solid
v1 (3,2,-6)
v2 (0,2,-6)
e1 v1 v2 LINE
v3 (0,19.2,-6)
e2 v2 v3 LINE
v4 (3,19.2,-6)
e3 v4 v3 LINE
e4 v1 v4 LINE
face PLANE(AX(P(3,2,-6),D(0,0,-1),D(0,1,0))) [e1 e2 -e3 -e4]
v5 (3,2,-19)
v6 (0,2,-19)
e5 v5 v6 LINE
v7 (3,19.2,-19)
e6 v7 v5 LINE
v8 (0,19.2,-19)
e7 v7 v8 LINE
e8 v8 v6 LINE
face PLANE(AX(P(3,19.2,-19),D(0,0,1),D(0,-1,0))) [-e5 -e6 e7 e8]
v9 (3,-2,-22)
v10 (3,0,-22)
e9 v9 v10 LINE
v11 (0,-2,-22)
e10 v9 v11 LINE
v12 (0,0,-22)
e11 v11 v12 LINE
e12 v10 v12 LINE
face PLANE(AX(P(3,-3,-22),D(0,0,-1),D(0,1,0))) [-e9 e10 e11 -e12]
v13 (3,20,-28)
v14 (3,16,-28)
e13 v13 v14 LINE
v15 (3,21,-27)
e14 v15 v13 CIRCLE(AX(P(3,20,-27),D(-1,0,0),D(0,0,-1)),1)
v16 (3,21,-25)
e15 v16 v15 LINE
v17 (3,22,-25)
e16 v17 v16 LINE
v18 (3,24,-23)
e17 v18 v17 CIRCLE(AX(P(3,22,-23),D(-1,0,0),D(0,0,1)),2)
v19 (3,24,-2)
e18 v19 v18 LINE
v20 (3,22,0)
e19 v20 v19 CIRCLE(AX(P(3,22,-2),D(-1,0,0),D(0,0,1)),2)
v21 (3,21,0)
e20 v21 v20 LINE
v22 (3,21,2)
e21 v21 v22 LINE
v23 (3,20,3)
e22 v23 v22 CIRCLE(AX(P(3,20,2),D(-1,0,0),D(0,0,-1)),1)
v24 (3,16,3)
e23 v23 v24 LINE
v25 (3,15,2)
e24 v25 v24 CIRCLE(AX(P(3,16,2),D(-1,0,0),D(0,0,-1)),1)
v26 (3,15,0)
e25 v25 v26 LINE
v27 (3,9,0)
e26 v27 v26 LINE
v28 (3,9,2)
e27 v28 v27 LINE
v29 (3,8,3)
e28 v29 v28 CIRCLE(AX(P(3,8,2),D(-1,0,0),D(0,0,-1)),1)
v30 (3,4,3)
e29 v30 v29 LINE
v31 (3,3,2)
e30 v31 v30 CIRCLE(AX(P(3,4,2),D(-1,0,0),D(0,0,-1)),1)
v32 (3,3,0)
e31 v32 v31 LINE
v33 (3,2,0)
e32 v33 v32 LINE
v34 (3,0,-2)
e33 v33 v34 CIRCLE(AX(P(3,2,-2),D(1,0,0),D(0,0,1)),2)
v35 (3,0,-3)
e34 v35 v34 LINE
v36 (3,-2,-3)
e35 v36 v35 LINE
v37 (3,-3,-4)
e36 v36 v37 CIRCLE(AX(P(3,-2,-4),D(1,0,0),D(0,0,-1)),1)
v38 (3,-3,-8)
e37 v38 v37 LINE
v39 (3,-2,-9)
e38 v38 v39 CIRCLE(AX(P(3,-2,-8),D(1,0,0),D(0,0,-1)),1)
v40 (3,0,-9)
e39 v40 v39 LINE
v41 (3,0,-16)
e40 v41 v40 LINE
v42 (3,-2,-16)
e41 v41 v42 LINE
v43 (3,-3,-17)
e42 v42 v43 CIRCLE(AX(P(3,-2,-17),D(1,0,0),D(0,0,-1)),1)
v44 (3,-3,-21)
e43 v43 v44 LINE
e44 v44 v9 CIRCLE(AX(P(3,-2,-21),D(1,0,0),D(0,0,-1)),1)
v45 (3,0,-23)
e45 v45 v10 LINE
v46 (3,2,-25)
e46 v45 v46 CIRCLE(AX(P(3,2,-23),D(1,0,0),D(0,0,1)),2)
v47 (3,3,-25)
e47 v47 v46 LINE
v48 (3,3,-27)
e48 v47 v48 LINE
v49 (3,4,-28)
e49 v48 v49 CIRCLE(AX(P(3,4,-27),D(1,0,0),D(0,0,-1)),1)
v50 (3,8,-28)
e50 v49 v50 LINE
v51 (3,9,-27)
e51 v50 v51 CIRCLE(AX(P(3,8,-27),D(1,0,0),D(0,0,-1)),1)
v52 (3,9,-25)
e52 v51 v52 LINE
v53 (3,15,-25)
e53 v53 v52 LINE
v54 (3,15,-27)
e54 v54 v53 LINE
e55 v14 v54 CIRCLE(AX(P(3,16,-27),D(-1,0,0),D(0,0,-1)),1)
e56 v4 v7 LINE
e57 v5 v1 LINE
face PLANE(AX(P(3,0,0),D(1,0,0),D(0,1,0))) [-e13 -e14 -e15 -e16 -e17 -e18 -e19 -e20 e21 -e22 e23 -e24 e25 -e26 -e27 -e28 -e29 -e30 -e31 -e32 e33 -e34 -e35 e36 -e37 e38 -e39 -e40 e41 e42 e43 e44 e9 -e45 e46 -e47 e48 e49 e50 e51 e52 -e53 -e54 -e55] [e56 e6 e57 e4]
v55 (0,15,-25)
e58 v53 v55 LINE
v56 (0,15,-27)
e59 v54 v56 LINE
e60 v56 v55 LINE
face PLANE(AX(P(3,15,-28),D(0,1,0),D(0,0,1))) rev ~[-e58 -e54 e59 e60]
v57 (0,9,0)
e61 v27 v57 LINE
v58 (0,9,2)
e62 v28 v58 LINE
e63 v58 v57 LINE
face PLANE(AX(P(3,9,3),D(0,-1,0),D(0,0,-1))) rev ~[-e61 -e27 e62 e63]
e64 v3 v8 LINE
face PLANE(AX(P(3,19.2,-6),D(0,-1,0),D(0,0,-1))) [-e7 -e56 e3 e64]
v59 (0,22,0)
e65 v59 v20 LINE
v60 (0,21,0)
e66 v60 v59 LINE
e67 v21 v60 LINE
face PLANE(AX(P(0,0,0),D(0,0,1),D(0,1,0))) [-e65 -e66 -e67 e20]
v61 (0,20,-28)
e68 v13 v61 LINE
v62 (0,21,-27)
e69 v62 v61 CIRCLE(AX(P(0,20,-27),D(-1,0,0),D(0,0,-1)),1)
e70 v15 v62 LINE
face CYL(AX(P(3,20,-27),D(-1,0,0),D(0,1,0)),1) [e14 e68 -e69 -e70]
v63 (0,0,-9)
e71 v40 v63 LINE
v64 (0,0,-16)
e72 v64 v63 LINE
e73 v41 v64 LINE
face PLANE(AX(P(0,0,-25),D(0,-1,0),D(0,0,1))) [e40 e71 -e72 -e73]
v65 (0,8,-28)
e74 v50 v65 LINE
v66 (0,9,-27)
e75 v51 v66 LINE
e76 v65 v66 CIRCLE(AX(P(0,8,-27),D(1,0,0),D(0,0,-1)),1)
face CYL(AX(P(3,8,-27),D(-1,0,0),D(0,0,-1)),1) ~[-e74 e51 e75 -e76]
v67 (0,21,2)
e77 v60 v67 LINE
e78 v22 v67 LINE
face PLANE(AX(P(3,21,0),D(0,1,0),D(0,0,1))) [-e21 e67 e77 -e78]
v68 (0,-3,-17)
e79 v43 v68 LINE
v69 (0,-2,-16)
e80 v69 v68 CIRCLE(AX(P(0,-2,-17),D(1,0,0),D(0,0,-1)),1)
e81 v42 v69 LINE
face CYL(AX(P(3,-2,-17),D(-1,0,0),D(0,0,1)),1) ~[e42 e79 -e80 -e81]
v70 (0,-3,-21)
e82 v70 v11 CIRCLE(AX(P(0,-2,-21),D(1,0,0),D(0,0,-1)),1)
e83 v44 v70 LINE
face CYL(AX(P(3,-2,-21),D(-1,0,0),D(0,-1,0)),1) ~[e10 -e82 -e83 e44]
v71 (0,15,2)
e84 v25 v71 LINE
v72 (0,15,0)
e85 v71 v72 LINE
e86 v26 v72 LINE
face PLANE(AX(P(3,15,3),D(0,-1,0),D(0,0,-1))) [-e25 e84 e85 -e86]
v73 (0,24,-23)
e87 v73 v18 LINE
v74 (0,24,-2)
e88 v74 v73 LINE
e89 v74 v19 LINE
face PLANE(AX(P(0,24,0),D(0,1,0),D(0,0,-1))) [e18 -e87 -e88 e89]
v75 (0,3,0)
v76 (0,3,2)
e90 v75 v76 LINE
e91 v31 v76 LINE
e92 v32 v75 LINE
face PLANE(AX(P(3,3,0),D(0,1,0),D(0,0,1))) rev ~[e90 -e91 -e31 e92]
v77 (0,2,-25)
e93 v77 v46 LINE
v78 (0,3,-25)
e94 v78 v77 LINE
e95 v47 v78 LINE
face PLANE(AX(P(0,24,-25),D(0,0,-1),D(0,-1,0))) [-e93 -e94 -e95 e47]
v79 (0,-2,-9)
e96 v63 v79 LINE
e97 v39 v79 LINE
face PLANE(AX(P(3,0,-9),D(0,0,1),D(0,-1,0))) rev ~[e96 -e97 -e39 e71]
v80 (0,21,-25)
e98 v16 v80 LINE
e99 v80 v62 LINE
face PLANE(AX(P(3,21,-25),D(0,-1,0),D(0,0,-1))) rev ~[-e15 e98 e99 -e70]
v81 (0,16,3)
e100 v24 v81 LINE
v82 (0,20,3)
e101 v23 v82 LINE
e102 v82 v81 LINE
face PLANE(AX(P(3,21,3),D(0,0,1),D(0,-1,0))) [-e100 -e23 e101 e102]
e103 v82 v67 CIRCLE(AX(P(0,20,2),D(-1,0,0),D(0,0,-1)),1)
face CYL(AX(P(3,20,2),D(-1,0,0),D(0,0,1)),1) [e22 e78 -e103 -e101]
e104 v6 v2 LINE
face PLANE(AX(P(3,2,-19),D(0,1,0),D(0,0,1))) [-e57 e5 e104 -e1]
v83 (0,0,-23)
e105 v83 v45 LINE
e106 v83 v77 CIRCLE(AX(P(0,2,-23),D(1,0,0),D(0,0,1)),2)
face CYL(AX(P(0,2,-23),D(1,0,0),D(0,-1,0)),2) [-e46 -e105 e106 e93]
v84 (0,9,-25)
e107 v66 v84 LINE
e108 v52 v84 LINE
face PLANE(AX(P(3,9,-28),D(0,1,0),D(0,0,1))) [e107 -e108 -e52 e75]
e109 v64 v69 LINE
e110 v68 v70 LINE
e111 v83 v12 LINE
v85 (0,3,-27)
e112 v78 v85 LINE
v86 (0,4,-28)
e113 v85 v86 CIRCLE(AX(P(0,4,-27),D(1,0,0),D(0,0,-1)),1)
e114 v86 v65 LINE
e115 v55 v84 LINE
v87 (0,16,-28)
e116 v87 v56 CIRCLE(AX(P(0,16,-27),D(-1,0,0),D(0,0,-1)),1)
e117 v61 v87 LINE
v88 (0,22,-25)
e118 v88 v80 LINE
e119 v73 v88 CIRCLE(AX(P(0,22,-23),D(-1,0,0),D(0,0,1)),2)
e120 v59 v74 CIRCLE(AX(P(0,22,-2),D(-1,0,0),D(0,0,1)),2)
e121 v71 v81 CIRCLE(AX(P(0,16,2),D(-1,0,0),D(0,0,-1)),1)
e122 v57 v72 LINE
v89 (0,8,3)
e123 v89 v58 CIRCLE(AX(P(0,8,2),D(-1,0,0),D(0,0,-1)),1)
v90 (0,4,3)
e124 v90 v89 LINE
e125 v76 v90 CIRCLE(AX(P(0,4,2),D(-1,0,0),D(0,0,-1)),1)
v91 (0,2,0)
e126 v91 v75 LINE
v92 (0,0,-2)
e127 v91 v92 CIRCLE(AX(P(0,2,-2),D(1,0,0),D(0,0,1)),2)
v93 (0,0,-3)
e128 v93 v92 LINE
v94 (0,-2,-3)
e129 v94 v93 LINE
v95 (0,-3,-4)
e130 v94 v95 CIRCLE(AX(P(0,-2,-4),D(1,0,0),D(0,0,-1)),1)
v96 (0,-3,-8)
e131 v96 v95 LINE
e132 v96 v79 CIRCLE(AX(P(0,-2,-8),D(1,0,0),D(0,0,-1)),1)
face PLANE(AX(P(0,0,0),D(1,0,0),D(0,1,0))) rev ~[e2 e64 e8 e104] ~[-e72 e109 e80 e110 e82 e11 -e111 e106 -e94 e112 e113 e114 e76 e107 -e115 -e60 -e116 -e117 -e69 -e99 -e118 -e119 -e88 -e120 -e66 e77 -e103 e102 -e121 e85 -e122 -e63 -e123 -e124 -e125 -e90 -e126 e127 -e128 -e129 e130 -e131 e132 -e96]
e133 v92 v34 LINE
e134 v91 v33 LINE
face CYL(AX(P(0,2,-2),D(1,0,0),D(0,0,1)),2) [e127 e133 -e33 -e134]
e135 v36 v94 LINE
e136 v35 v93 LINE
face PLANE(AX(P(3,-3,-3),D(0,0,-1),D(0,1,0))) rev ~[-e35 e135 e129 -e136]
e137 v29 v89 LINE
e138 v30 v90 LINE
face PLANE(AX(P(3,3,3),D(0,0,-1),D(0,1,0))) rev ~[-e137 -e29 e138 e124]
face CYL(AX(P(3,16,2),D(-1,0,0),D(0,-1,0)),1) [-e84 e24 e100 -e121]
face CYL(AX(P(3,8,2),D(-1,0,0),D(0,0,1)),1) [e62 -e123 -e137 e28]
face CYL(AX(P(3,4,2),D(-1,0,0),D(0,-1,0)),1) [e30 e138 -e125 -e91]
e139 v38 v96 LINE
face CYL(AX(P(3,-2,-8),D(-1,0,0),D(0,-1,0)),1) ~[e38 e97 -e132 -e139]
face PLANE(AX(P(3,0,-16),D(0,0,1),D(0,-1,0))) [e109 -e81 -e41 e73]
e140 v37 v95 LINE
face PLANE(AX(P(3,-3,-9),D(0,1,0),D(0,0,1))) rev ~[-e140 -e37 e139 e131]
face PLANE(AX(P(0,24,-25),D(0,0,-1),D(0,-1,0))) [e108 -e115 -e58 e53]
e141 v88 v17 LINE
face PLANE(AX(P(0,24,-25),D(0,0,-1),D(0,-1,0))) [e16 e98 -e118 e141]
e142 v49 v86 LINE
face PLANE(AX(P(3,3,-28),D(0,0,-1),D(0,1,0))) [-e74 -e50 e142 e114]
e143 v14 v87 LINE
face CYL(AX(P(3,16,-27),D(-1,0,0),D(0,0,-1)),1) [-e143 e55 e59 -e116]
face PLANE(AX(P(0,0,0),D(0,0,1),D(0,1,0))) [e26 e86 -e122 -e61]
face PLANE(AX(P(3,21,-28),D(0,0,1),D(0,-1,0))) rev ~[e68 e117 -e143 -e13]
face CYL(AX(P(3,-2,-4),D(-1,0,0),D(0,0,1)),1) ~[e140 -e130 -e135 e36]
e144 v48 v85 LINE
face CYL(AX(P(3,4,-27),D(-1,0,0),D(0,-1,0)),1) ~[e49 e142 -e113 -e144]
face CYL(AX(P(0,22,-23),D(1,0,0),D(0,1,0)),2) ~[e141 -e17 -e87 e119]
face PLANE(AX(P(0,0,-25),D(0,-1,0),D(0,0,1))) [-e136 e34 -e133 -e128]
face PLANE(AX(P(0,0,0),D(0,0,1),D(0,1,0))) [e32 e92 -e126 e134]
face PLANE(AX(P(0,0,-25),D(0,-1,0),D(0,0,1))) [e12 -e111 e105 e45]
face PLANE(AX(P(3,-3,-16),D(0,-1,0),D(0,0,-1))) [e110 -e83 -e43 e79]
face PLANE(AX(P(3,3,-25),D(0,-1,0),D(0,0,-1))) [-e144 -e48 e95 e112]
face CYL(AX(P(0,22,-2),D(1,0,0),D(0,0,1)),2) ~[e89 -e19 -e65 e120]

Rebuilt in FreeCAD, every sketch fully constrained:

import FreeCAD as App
import Part
import Sketcher
Q = App.Units.Quantity


def edges_at(feature, points):
    """Names of the edges that pass closest to the given points."""
    edges = feature.Shape.Edges
    near = lambda p: min(range(len(edges)), key=lambda i: edges[i].distToShape(Part.Vertex(*p))[0])
    return sorted({f"Edge{near(p) + 1}" for p in points})

doc = App.newDocument("Part")
body = doc.addObject("PartDesign::Body", "Body")

# Sketch on YZ plane
sketch1 = doc.addObject("Sketcher::SketchObject", "Sketch")
body.addObject(sketch1)
sketch1.AttachmentSupport = (doc.YZ_Plane, [""])
sketch1.MapMode = "FlatFace"
sketch1.addGeometry([
    Part.LineSegment(App.Vector(24, 0, 0), App.Vector(0, 0, 0)),
    Part.LineSegment(App.Vector(0, 0, 0), App.Vector(0, -25, 0)),
    Part.LineSegment(App.Vector(0, -25, 0), App.Vector(24, -25, 0)),
    Part.LineSegment(App.Vector(24, -25, 0), App.Vector(24, 0, 0)),
], False)
sketch1.addConstraint([
    Sketcher.Constraint("Coincident", 0, 2, 1, 1),
    Sketcher.Constraint("Coincident", 1, 2, 2, 1),
    Sketcher.Constraint("Coincident", 2, 2, 3, 1),
    Sketcher.Constraint("Coincident", 3, 2, 0, 1),
    Sketcher.Constraint("Horizontal", 0),
    Sketcher.Constraint("Vertical", 1),
    Sketcher.Constraint("Horizontal", 2),
    Sketcher.Constraint("Vertical", 3),
    Sketcher.Constraint("Coincident", 0, 2, -1, 1),
    Sketcher.Constraint("DistanceX", 0, 2, 0, 1, Q("24 mm")),
    Sketcher.Constraint("DistanceY", 1, 2, 1, 1, Q("25 mm")),
])
pad1 = doc.addObject("PartDesign::Pad", "Pad")
body.addObject(pad1)
pad1.Profile = sketch1
pad1.Length = 3

# Sketch on YZ plane
sketch2 = doc.addObject("Sketcher::SketchObject", "Sketch001")
body.addObject(sketch2)
sketch2.AttachmentSupport = (doc.YZ_Plane, [""])
sketch2.MapMode = "FlatFace"
sketch2.AttachmentOffset = App.Placement(App.Vector(0, 0, 3), App.Rotation())
sketch2.addGeometry([
    Part.LineSegment(App.Vector(0, -22, 0), App.Vector(0, -16, 0)),  # 0
    Part.LineSegment(App.Vector(0, -16, 0), App.Vector(-3, -16, 0)),  # 1
    Part.LineSegment(App.Vector(-3, -16, 0), App.Vector(-3, -22, 0)),  # 2
    Part.LineSegment(App.Vector(-3, -22, 0), App.Vector(0, -22, 0)),  # 3
    Part.LineSegment(App.Vector(15, 0, 0), App.Vector(21, 0, 0)),  # 4
    Part.LineSegment(App.Vector(21, 0, 0), App.Vector(21, 3, 0)),  # 5
    Part.LineSegment(App.Vector(21, 3, 0), App.Vector(15, 3, 0)),  # 6
    Part.LineSegment(App.Vector(15, 3, 0), App.Vector(15, 0, 0)),  # 7
    Part.LineSegment(App.Vector(3, 0, 0), App.Vector(9, 0, 0)),  # 8
    Part.LineSegment(App.Vector(9, 0, 0), App.Vector(9, 3, 0)),  # 9
    Part.LineSegment(App.Vector(9, 3, 0), App.Vector(3, 3, 0)),  # 10
    Part.LineSegment(App.Vector(3, 3, 0), App.Vector(3, 0, 0)),  # 11
    Part.LineSegment(App.Vector(-3, -9, 0), App.Vector(0, -9, 0)),  # 12
    Part.LineSegment(App.Vector(0, -9, 0), App.Vector(0, -3, 0)),  # 13
    Part.LineSegment(App.Vector(0, -3, 0), App.Vector(-3, -3, 0)),  # 14
    Part.LineSegment(App.Vector(-3, -3, 0), App.Vector(-3, -9, 0)),  # 15
    Part.LineSegment(App.Vector(21, -28, 0), App.Vector(21, -25, 0)),  # 16
    Part.LineSegment(App.Vector(21, -25, 0), App.Vector(15, -25, 0)),  # 17
    Part.LineSegment(App.Vector(15, -25, 0), App.Vector(15, -28, 0)),  # 18
    Part.LineSegment(App.Vector(15, -28, 0), App.Vector(21, -28, 0)),  # 19
    Part.LineSegment(App.Vector(9, -25, 0), App.Vector(3, -25, 0)),  # 20
    Part.LineSegment(App.Vector(3, -25, 0), App.Vector(3, -28, 0)),  # 21
    Part.LineSegment(App.Vector(3, -28, 0), App.Vector(9, -28, 0)),  # 22
    Part.LineSegment(App.Vector(9, -28, 0), App.Vector(9, -25, 0)),  # 23
], False)
sketch2.addConstraint([
    Sketcher.Constraint("Coincident", 0, 2, 1, 1),
    Sketcher.Constraint("Coincident", 1, 2, 2, 1),
    Sketcher.Constraint("Coincident", 2, 2, 3, 1),
    Sketcher.Constraint("Coincident", 3, 2, 0, 1),
    Sketcher.Constraint("Coincident", 4, 2, 5, 1),
    Sketcher.Constraint("Coincident", 5, 2, 6, 1),
    Sketcher.Constraint("Coincident", 6, 2, 7, 1),
    Sketcher.Constraint("Coincident", 7, 2, 4, 1),
    Sketcher.Constraint("Coincident", 8, 2, 9, 1),
    Sketcher.Constraint("Coincident", 9, 2, 10, 1),
    Sketcher.Constraint("Coincident", 10, 2, 11, 1),
    Sketcher.Constraint("Coincident", 11, 2, 8, 1),
    Sketcher.Constraint("Coincident", 12, 2, 13, 1),
    Sketcher.Constraint("Coincident", 13, 2, 14, 1),
    Sketcher.Constraint("Coincident", 14, 2, 15, 1),
    Sketcher.Constraint("Coincident", 15, 2, 12, 1),
    Sketcher.Constraint("Coincident", 16, 2, 17, 1),
    Sketcher.Constraint("Coincident", 17, 2, 18, 1),
    Sketcher.Constraint("Coincident", 18, 2, 19, 1),
    Sketcher.Constraint("Coincident", 19, 2, 16, 1),
    Sketcher.Constraint("Coincident", 20, 2, 21, 1),
    Sketcher.Constraint("Coincident", 21, 2, 22, 1),
    Sketcher.Constraint("Coincident", 22, 2, 23, 1),
    Sketcher.Constraint("Coincident", 23, 2, 20, 1),
    Sketcher.Constraint("Vertical", 0),
    Sketcher.Constraint("Horizontal", 1),
    Sketcher.Constraint("Vertical", 2),
    Sketcher.Constraint("Horizontal", 3),
    Sketcher.Constraint("Horizontal", 4),
    Sketcher.Constraint("Vertical", 5),
    Sketcher.Constraint("Horizontal", 6),
    Sketcher.Constraint("Vertical", 7),
    Sketcher.Constraint("Horizontal", 8),
    Sketcher.Constraint("Vertical", 9),
    Sketcher.Constraint("Horizontal", 10),
    Sketcher.Constraint("Vertical", 11),
    Sketcher.Constraint("Horizontal", 12),
    Sketcher.Constraint("Vertical", 13),
    Sketcher.Constraint("Horizontal", 14),
    Sketcher.Constraint("Vertical", 15),
    Sketcher.Constraint("Vertical", 16),
    Sketcher.Constraint("Horizontal", 17),
    Sketcher.Constraint("Vertical", 18),
    Sketcher.Constraint("Horizontal", 19),
    Sketcher.Constraint("Horizontal", 20),
    Sketcher.Constraint("Vertical", 21),
    Sketcher.Constraint("Horizontal", 22),
    Sketcher.Constraint("Vertical", 23),
    Sketcher.Constraint("Symmetric", 10, 2, 14, 2, -1, 1),
    Sketcher.Constraint("PointOnObject", 0, 2, -2),
    Sketcher.Constraint("PointOnObject", 4, 2, -1),
    Sketcher.Constraint("PointOnObject", 8, 2, -1),
    Sketcher.Constraint("PointOnObject", 12, 2, -2),
    Sketcher.Constraint("Horizontal", 6, 2, 9, 2),
    Sketcher.Constraint("Horizontal", 17, 2, 20, 2),
    Sketcher.Constraint("Horizontal", 19, 2, 21, 2),
    Sketcher.Constraint("Vertical", 2, 2, 14, 2),
    Sketcher.Constraint("Vertical", 5, 2, 16, 2),
    Sketcher.Constraint("Vertical", 7, 2, 17, 2),
    Sketcher.Constraint("Vertical", 11, 2, 20, 2),
    Sketcher.Constraint("Vertical", 9, 2, 22, 2),
    Sketcher.Constraint("Equal", 6, 8),
    Sketcher.Constraint("Equal", 22, 0),
    Sketcher.Constraint("Equal", 14, 5),
    Sketcher.Constraint("Equal", 2, 13),
    Sketcher.Constraint("Equal", 11, 16),
    Sketcher.Constraint("DistanceX", 1, 2, 1, 1, Q("3 mm")),
    Sketcher.Constraint("DistanceX", 4, 1, 4, 2, Q("6 mm")),
    Sketcher.Constraint("DistanceX", 8, 2, 7, 2, Q("6 mm")),
    Sketcher.Constraint("DistanceY", 16, 2, 3, 2, Q("3 mm")),
    Sketcher.Constraint("DistanceY", 0, 2, -1, 1, Q("16 mm")),
])
pad2 = doc.addObject("PartDesign::Pad", "Pad001")
body.addObject(pad2)
pad2.Profile = sketch2
pad2.Length = 3
pad2.Reversed = True

# Sketch on YZ plane
sketch3 = doc.addObject("Sketcher::SketchObject", "Sketch002")
body.addObject(sketch3)
sketch3.AttachmentSupport = (doc.YZ_Plane, [""])
sketch3.MapMode = "FlatFace"
sketch3.AttachmentOffset = App.Placement(App.Vector(0, 0, 3), App.Rotation())
sketch3.addGeometry([
    Part.LineSegment(App.Vector(19.2, -19, 0), App.Vector(19.2, -6, 0)),
    Part.LineSegment(App.Vector(19.2, -6, 0), App.Vector(2, -6, 0)),
    Part.LineSegment(App.Vector(2, -6, 0), App.Vector(2, -19, 0)),
    Part.LineSegment(App.Vector(2, -19, 0), App.Vector(19.2, -19, 0)),
], False)
sketch3.addConstraint([
    Sketcher.Constraint("Coincident", 0, 2, 1, 1),
    Sketcher.Constraint("Coincident", 1, 2, 2, 1),
    Sketcher.Constraint("Coincident", 2, 2, 3, 1),
    Sketcher.Constraint("Coincident", 3, 2, 0, 1),
    Sketcher.Constraint("Vertical", 0),
    Sketcher.Constraint("Horizontal", 1),
    Sketcher.Constraint("Vertical", 2),
    Sketcher.Constraint("Horizontal", 3),
    Sketcher.Constraint("DistanceY", 0, 2, -1, 1, Q("6 mm")),
    Sketcher.Constraint("DistanceX", -1, 1, 1, 2, Q("2 mm")),
    Sketcher.Constraint("DistanceY", 0, 1, 0, 2, Q("13 mm")),
    Sketcher.Constraint("DistanceX", 1, 2, 1, 1, Q("17.2 mm")),
])
pocket1 = doc.addObject("PartDesign::Pocket", "Pocket")
body.addObject(pocket1)
pocket1.Profile = sketch3
pocket1.Length = 3
doc.recompute()

fillet = doc.addObject("PartDesign::Fillet", "Fillet")
body.addObject(fillet)
fillet.Base = (pocket1, edges_at(pocket1, [
    (1.5, 24, 0),
    (1.5, 24, -25),
    (1.5, 0, -25),
    (1.5, 0, 0),
]))
fillet.Radius = 2
doc.recompute()

fillet2 = doc.addObject("PartDesign::Fillet", "Fillet001")
body.addObject(fillet2)
fillet2.Base = (fillet, edges_at(fillet, [
    (1.5, 21, 3),
    (1.5, 15, 3),
    (1.5, 9, 3),
    (1.5, 3, 3),
    (1.5, -3, -3),
    (1.5, -3, -9),
    (1.5, -3, -16),
    (1.5, -3, -22),
    (1.5, 3, -28),
    (1.5, 9, -28),
    (1.5, 15, -28),
    (1.5, 21, -28),
]))
fillet2.Radius = 1

doc.recompute()
